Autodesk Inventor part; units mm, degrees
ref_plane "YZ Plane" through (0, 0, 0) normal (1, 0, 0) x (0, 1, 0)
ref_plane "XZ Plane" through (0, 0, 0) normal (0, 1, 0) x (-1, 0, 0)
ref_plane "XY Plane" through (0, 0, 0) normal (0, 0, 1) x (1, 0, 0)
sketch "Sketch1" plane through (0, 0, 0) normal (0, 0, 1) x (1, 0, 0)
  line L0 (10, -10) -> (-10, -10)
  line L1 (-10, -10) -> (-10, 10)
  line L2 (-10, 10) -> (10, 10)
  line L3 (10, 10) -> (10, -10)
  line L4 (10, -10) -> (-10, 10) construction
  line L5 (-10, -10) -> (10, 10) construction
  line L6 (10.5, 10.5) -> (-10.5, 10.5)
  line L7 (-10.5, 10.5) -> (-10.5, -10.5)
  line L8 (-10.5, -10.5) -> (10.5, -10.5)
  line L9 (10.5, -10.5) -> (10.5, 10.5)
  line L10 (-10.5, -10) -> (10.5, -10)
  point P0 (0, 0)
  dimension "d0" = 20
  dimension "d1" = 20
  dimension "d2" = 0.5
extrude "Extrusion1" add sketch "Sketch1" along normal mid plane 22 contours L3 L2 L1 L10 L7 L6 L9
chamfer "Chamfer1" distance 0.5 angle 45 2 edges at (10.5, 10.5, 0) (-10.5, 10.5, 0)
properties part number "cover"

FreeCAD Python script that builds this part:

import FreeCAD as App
import Part
import Sketcher

V = App.Vector
Q = App.Units.Quantity


def edges_at(feature, points):
    """Names of the edges that pass closest to the given points."""
    edges = feature.Shape.Edges
    near = lambda p: min(range(len(edges)), key=lambda i: edges[i].distToShape(Part.Vertex(*p))[0])
    return sorted({f"Edge{near(p) + 1}" for p in points})

doc = App.newDocument("Part")
params = doc.addObject("Spreadsheet::Sheet", "Params")
for row, (alias, value) in enumerate([
    ("sketch1_width", "20 mm"),
    ("sketch1_width2", "0.5 mm"),
    ("pad1_length", "22 mm"),
    ("chamfer_size", "0.5 mm"),
], start=1):
    params.set(f"A{row}", alias)
    params.set(f"B{row}", "=" + value)
    params.setAlias(f"B{row}", alias)

body = doc.addObject("PartDesign::Body", "Body")

# Sketch on XY plane
sketch1 = doc.addObject("Sketcher::SketchObject", "Sketch")
body.addObject(sketch1)
sketch1.AttachmentSupport = (doc.XY_Plane, [""])
sketch1.MapMode = "FlatFace"
sketch1.addGeometry([
    Part.LineSegment(V(10, 10, 0), V(10, -10, 0)),  # 0
    Part.LineSegment(V(10, -10, 0), V(10.5, -10, 0)),  # 1
    Part.LineSegment(V(10.5, -10, 0), V(10.5, 10.5, 0)),  # 2
    Part.LineSegment(V(10.5, 10.5, 0), V(-10.5, 10.5, 0)),  # 3
    Part.LineSegment(V(-10.5, 10.5, 0), V(-10.5, -10, 0)),  # 4
    Part.LineSegment(V(-10.5, -10, 0), V(-10, -10, 0)),  # 5
    Part.LineSegment(V(-10, -10, 0), V(-10, 10, 0)),  # 6
    Part.LineSegment(V(-10, 10, 0), V(10, 10, 0)),  # 7
], False)
sketch1.addConstraint([
    Sketcher.Constraint("Coincident", 0, 2, 1, 1),
    Sketcher.Constraint("Coincident", 1, 2, 2, 1),
    Sketcher.Constraint("Coincident", 2, 2, 3, 1),
    Sketcher.Constraint("Coincident", 3, 2, 4, 1),
    Sketcher.Constraint("Coincident", 4, 2, 5, 1),
    Sketcher.Constraint("Coincident", 5, 2, 6, 1),
    Sketcher.Constraint("Coincident", 6, 2, 7, 1),
    Sketcher.Constraint("Coincident", 7, 2, 0, 1),
    Sketcher.Constraint("Vertical", 0),
    Sketcher.Constraint("Horizontal", 1),
    Sketcher.Constraint("Vertical", 2),
    Sketcher.Constraint("Horizontal", 3),
    Sketcher.Constraint("Vertical", 4),
    Sketcher.Constraint("Horizontal", 5),
    Sketcher.Constraint("Vertical", 6),
    Sketcher.Constraint("Horizontal", 7),
    Sketcher.Constraint("Symmetric", 0, 2, 6, 2, -1, 1),
    Sketcher.Constraint("Symmetric", 1, 2, 4, 2, -2),
    Sketcher.Constraint("Equal", 7, 0),
    Sketcher.Constraint("DistanceX", 7, 1, 7, 2, Q("20 mm")),
    Sketcher.Constraint("DistanceX", 1, 1, 1, 2, Q("0.5 mm")),
    Sketcher.Constraint("DistanceY", 6, 2, 3, 2, Q("0.5 mm")),
])
sketch1.setExpression("Constraints[19]", "Params.sketch1_width")
sketch1.setExpression("Constraints[20]", "Params.sketch1_width2")
pad1 = doc.addObject("PartDesign::Pad", "Pad")
body.addObject(pad1)
pad1.Profile = sketch1
pad1.setExpression("Length", "Params.pad1_length")
pad1.Midplane = True
doc.recompute()

chamfer = doc.addObject("PartDesign::Chamfer", "Chamfer")
body.addObject(chamfer)
chamfer.Base = (pad1, edges_at(pad1, [(10.5, 10.5, 0), (-10.5, 10.5, 0)]))
chamfer.setExpression("Size", "Params.chamfer_size")

doc.recompute()
